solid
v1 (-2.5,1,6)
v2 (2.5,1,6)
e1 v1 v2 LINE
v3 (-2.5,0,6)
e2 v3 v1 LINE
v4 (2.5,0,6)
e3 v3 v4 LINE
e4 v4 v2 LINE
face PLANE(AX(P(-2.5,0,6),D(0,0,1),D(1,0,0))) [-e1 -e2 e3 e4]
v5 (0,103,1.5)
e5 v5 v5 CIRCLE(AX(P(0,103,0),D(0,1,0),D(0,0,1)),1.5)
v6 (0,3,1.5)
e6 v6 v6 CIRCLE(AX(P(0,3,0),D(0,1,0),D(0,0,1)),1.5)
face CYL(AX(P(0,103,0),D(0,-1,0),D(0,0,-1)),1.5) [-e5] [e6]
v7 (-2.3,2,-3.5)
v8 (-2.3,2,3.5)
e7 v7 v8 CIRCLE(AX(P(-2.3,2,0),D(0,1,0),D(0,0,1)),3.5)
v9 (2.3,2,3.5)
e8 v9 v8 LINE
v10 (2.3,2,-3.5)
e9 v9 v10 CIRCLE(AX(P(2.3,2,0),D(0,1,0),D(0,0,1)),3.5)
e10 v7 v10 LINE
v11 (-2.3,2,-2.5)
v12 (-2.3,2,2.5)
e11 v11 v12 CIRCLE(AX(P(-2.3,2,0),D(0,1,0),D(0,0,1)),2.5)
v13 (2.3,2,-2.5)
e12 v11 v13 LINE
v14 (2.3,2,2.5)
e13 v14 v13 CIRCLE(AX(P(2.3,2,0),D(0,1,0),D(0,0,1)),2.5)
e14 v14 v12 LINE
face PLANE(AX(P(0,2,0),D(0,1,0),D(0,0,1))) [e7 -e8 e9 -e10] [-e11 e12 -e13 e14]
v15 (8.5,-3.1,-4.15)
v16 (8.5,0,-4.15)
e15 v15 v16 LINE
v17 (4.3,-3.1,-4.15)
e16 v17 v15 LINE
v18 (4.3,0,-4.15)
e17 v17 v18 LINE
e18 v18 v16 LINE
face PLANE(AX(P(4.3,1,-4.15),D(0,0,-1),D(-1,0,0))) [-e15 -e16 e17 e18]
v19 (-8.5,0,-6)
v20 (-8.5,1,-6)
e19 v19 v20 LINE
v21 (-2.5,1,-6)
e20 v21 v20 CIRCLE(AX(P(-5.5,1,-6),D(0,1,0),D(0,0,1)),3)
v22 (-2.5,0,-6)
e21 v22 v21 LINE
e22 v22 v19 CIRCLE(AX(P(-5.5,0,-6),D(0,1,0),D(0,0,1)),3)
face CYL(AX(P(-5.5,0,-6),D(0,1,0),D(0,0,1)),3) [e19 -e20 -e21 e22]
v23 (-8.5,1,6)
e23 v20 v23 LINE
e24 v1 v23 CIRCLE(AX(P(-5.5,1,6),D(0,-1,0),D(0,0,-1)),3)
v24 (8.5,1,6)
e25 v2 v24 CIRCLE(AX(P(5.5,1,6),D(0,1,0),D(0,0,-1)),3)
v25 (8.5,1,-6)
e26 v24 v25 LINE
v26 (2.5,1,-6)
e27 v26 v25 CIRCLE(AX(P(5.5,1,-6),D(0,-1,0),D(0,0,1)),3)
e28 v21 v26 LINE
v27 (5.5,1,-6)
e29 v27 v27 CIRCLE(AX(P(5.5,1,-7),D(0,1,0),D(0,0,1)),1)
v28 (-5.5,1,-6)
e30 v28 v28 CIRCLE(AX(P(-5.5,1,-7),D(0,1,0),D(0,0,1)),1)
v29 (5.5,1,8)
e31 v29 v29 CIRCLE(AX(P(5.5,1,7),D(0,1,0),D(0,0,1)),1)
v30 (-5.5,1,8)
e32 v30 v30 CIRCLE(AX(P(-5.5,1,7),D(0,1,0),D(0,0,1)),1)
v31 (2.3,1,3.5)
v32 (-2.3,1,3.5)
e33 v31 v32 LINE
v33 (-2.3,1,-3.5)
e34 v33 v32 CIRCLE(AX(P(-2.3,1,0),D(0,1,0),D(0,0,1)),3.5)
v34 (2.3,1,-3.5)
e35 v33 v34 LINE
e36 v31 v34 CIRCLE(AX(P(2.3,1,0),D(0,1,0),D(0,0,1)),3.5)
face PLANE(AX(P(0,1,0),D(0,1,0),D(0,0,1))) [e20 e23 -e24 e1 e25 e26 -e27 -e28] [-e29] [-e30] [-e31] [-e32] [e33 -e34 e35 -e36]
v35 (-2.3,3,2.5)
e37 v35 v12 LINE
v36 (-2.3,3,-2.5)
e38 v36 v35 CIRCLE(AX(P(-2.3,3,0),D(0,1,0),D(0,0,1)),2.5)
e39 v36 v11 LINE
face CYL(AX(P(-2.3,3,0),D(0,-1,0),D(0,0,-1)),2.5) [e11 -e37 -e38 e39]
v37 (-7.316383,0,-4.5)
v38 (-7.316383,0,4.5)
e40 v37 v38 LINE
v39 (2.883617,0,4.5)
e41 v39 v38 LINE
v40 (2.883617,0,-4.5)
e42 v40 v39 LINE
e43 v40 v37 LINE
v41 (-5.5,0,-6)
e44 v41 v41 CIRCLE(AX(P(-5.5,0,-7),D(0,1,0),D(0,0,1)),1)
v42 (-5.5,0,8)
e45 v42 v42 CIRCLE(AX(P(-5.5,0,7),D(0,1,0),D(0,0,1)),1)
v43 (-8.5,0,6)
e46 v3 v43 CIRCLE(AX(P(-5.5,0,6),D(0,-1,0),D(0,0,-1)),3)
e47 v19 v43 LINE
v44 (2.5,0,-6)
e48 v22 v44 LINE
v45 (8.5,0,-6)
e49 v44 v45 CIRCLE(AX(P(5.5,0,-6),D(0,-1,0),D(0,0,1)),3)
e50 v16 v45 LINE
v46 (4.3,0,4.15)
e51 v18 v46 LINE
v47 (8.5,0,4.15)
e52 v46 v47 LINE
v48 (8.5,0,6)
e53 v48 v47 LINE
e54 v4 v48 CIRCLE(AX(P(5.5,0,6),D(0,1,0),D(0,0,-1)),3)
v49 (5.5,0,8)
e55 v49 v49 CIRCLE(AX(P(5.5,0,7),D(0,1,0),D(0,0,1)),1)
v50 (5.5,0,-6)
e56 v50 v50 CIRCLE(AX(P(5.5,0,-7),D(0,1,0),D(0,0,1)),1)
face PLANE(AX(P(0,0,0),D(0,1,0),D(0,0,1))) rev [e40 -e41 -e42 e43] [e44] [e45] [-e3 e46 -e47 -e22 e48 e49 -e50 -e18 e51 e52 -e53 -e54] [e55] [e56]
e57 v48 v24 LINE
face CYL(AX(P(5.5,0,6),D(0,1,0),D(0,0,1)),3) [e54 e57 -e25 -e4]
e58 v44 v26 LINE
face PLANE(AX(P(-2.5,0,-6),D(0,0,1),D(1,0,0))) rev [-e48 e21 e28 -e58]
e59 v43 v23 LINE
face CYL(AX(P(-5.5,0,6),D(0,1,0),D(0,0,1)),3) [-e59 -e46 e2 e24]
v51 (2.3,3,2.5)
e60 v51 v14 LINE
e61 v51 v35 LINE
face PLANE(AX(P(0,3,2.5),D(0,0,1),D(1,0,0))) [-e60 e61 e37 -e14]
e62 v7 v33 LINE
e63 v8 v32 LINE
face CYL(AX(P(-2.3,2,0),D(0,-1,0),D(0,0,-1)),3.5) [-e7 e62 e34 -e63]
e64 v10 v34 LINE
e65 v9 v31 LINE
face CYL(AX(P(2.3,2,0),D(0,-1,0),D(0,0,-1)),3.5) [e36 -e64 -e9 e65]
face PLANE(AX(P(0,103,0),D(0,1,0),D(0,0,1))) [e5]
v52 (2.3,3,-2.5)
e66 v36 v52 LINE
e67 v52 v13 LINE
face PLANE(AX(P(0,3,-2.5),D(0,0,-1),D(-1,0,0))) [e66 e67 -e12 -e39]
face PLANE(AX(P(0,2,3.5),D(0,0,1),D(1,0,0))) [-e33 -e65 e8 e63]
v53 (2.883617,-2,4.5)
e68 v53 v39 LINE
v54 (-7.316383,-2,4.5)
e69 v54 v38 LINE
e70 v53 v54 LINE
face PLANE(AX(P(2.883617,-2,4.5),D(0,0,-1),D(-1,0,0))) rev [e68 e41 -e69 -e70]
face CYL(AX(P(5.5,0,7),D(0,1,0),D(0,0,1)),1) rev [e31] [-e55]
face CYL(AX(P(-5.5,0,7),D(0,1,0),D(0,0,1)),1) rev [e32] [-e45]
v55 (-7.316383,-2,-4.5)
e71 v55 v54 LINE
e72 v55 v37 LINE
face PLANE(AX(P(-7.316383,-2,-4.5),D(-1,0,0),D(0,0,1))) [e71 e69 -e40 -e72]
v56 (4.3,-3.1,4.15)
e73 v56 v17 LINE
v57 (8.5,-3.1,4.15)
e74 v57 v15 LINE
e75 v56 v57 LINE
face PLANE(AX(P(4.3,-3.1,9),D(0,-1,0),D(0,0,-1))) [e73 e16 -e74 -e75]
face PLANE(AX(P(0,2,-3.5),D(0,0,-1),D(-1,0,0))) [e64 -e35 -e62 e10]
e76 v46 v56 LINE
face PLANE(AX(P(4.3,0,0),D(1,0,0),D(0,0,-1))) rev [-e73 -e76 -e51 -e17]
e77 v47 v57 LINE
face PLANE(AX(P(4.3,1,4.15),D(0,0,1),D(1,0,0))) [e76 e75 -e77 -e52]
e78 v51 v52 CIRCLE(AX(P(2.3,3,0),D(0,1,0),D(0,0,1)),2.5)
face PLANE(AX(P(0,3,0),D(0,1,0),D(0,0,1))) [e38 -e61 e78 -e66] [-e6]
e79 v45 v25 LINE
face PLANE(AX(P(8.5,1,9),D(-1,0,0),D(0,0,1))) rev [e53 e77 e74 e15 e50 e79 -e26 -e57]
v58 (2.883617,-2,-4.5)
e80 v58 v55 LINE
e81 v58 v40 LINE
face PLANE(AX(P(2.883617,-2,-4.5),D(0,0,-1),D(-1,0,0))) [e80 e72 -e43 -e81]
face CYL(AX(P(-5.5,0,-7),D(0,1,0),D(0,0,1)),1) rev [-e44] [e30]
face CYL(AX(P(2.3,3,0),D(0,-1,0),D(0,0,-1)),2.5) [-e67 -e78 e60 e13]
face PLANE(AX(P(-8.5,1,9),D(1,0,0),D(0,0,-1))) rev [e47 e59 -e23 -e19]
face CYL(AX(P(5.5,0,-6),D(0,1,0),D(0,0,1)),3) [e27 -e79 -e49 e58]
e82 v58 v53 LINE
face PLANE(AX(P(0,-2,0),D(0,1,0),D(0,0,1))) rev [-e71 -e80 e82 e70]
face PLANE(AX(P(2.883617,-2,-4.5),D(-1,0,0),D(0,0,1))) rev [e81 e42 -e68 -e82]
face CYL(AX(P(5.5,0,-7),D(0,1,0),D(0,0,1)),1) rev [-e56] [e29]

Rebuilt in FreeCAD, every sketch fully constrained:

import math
import FreeCAD as App
import Part
import Sketcher

doc = App.newDocument("Part")
body = doc.addObject("PartDesign::Body", "Body")

# Sketch on XZ plane
sketch1 = body.newObject("Sketcher::SketchObject", "Sketch")
sketch1.AttachmentSupport = (doc.getObject("XZ_Plane"), [""])
sketch1.MapMode = "FlatFace"
sketch1.addGeometry(Part.LineSegment(App.Vector(-8.5, -9, 0), App.Vector(-8.5, 9, 0)), False)
sketch1.addGeometry(Part.LineSegment(App.Vector(-8.5, 9, 0), App.Vector(8.5, 9, 0)), False)
sketch1.addGeometry(Part.LineSegment(App.Vector(8.5, 9, 0), App.Vector(8.5, -9, 0)), False)
sketch1.addGeometry(Part.LineSegment(App.Vector(8.5, -9, 0), App.Vector(-8.5, -9, 0)), False)
sketch1.addConstraint(Sketcher.Constraint("Coincident", 0, 2, 1, 1))
sketch1.addConstraint(Sketcher.Constraint("Coincident", 1, 2, 2, 1))
sketch1.addConstraint(Sketcher.Constraint("Coincident", 2, 2, 3, 1))
sketch1.addConstraint(Sketcher.Constraint("Coincident", 3, 2, 0, 1))
sketch1.addConstraint(Sketcher.Constraint("Vertical", 0))
sketch1.addConstraint(Sketcher.Constraint("Horizontal", 1))
sketch1.addConstraint(Sketcher.Constraint("Vertical", 2))
sketch1.addConstraint(Sketcher.Constraint("Horizontal", 3))
sketch1.addConstraint(Sketcher.Constraint("Symmetric", 0, 2, 2, 2, -1, 1))
sketch1.addConstraint(Sketcher.Constraint("DistanceX", 1, 1, 1, 2, 17.0))
sketch1.addConstraint(Sketcher.Constraint("DistanceY", 0, 1, 0, 2, 18.0))
pad1 = body.newObject("PartDesign::Pad", "Pad")
pad1.Profile = sketch1
pad1.Length = 1
pad1.Reversed = True

# Sketch on XZ plane
sketch2 = body.newObject("Sketcher::SketchObject", "Sketch001")
sketch2.AttachmentSupport = (doc.getObject("XZ_Plane"), [""])
sketch2.MapMode = "FlatFace"
sketch2.AttachmentOffset = App.Placement(App.Vector(0, 0, -1), App.Rotation())
sketch2.addGeometry(Part.Circle(App.Vector(-5.5, -7, 0), App.Vector(0, 0, 1), 1), False)
sketch2.addGeometry(Part.Circle(App.Vector(5.5, -7, 0), App.Vector(0, 0, 1), 1), False)
sketch2.addGeometry(Part.Circle(App.Vector(-5.5, 7, 0), App.Vector(0, 0, 1), 1), False)
sketch2.addGeometry(Part.Circle(App.Vector(5.5, 7, 0), App.Vector(0, 0, 1), 1), False)
sketch2.addConstraint(Sketcher.Constraint("Equal", 0, 1))
sketch2.addConstraint(Sketcher.Constraint("Equal", 1, 2))
sketch2.addConstraint(Sketcher.Constraint("Equal", 2, 3))
sketch2.addConstraint(Sketcher.Constraint("Symmetric", 1, 3, 2, 3, -1, 1))
sketch2.addConstraint(Sketcher.Constraint("Symmetric", 0, 3, 3, 3, -1, 1))
sketch2.addConstraint(Sketcher.Constraint("Symmetric", 0, 3, 1, 3, -2))
sketch2.addConstraint(Sketcher.Constraint("Diameter", 0, 2.0))
sketch2.addConstraint(Sketcher.Constraint("DistanceY", 0, 3, -1, 1, 7.0))
sketch2.addConstraint(Sketcher.Constraint("DistanceX", 0, 3, 1, 3, 11.0))
pocket1 = body.newObject("PartDesign::Pocket", "Pocket")
pocket1.Profile = sketch2
pocket1.Type = "ThroughAll"
pocket1.Reversed = True

# Sketch on XZ plane
sketch3 = body.newObject("Sketcher::SketchObject", "Sketch002")
sketch3.AttachmentSupport = (doc.getObject("XZ_Plane"), [""])
sketch3.MapMode = "FlatFace"
sketch3.AttachmentOffset = App.Placement(App.Vector(0, 0, -1), App.Rotation())
sketch3.addGeometry(Part.LineSegment(App.Vector(-8.5, -9, 0), App.Vector(-8.5, -6, 0)), False)
sketch3.addGeometry(Part.ArcOfCircle(Part.Circle(App.Vector(-5.5, -6, 0), App.Vector(0, 0, 1), 3), math.radians(180), math.radians(270)), False)
sketch3.addGeometry(Part.LineSegment(App.Vector(-5.5, -9, 0), App.Vector(-8.5, -9, 0)), False)
sketch3.addGeometry(Part.LineSegment(App.Vector(-2.5, -9, 0), App.Vector(-5.5, -9, 0)), False)
sketch3.addGeometry(Part.ArcOfCircle(Part.Circle(App.Vector(-5.5, -6, 0), App.Vector(0, 0, 1), 3), math.radians(-90), math.radians(0)), False)
sketch3.addGeometry(Part.LineSegment(App.Vector(-2.5, -6, 0), App.Vector(-2.5, -9, 0)), False)
sketch3.addConstraint(Sketcher.Constraint("Tangent", 0, 2, 1, 1))
sketch3.addConstraint(Sketcher.Constraint("Tangent", 1, 2, 2, 1))
sketch3.addConstraint(Sketcher.Constraint("Coincident", 2, 2, 0, 1))
sketch3.addConstraint(Sketcher.Constraint("Tangent", 3, 2, 4, 1))
sketch3.addConstraint(Sketcher.Constraint("Tangent", 4, 2, 5, 1))
sketch3.addConstraint(Sketcher.Constraint("Coincident", 5, 2, 3, 1))
sketch3.addConstraint(Sketcher.Constraint("Vertical", 0))
sketch3.addConstraint(Sketcher.Constraint("Horizontal", 2))
sketch3.addConstraint(Sketcher.Constraint("Horizontal", 3))
sketch3.addConstraint(Sketcher.Constraint("Vertical", 5))
sketch3.addConstraint(Sketcher.Constraint("Coincident", 4, 3, 1, 3))
sketch3.addConstraint(Sketcher.Constraint("Equal", 1, 4))
sketch3.addConstraint(Sketcher.Constraint("Radius", 1, 3.0))
sketch3.addConstraint(Sketcher.Constraint("DistanceY", 1, 3, -1, 1, 6.0))
sketch3.addConstraint(Sketcher.Constraint("DistanceX", 1, 3, -1, 1, 5.5))
pocket2 = body.newObject("PartDesign::Pocket", "Pocket001")
pocket2.Profile = sketch3
pocket2.Type = "ThroughAll"
pocket2.Reversed = True
doc.recompute()

mirrored = body.newObject("PartDesign::Mirrored", "Mirrored")
mirrored.Originals = [pocket2]
mirrored.MirrorPlane = (doc.getObject("XY_Plane"), [""])
body.Tip = mirrored
doc.recompute()

mirrored2 = body.newObject("PartDesign::Mirrored", "Mirrored001")
mirrored2.Originals = [pocket2]
mirrored2.MirrorPlane = (doc.getObject("YZ_Plane"), [""])
body.Tip = mirrored2

# Sketch on XZ plane
sketch4 = body.newObject("Sketcher::SketchObject", "Sketch003")
sketch4.AttachmentSupport = (doc.getObject("XZ_Plane"), [""])
sketch4.MapMode = "FlatFace"
sketch4.AttachmentOffset = App.Placement(App.Vector(0, 0, -1), App.Rotation())
sketch4.addGeometry(Part.LineSegment(App.Vector(8.5, 9, 0), App.Vector(8.5, 6, 0)), False)
sketch4.addGeometry(Part.ArcOfCircle(Part.Circle(App.Vector(5.5, 6, 0), App.Vector(0, 0, 1), 3), math.radians(0), math.radians(90)), False)
sketch4.addGeometry(Part.LineSegment(App.Vector(5.5, 9, 0), App.Vector(8.5, 9, 0)), False)
sketch4.addGeometry(Part.LineSegment(App.Vector(2.5, 9, 0), App.Vector(5.5, 9, 0)), False)
sketch4.addGeometry(Part.ArcOfCircle(Part.Circle(App.Vector(5.5, 6, 0), App.Vector(0, 0, 1), 3), math.radians(90), math.radians(180)), False)
sketch4.addGeometry(Part.LineSegment(App.Vector(2.5, 6, 0), App.Vector(2.5, 9, 0)), False)
sketch4.addConstraint(Sketcher.Constraint("Tangent", 0, 2, 1, 1))
sketch4.addConstraint(Sketcher.Constraint("Tangent", 1, 2, 2, 1))
sketch4.addConstraint(Sketcher.Constraint("Coincident", 2, 2, 0, 1))
sketch4.addConstraint(Sketcher.Constraint("Tangent", 3, 2, 4, 1))
sketch4.addConstraint(Sketcher.Constraint("Tangent", 4, 2, 5, 1))
sketch4.addConstraint(Sketcher.Constraint("Coincident", 5, 2, 3, 1))
sketch4.addConstraint(Sketcher.Constraint("Vertical", 0))
sketch4.addConstraint(Sketcher.Constraint("Horizontal", 2))
sketch4.addConstraint(Sketcher.Constraint("Horizontal", 3))
sketch4.addConstraint(Sketcher.Constraint("Vertical", 5))
sketch4.addConstraint(Sketcher.Constraint("Coincident", 4, 3, 1, 3))
sketch4.addConstraint(Sketcher.Constraint("Equal", 1, 4))
sketch4.addConstraint(Sketcher.Constraint("Radius", 1, 3.0))
sketch4.addConstraint(Sketcher.Constraint("DistanceY", -1, 1, 1, 3, 6.0))
sketch4.addConstraint(Sketcher.Constraint("DistanceX", -1, 1, 1, 3, 5.5))
pocket3 = body.newObject("PartDesign::Pocket", "Pocket002")
pocket3.Profile = sketch4
pocket3.Type = "ThroughAll"
pocket3.Reversed = True

# Sketch on XZ plane
sketch5 = body.newObject("Sketcher::SketchObject", "Sketch004")
sketch5.AttachmentSupport = (doc.getObject("XZ_Plane"), [""])
sketch5.MapMode = "FlatFace"
sketch5.AttachmentOffset = App.Placement(App.Vector(0, 0, -1), App.Rotation())
sketch5.addGeometry(Part.LineSegment(App.Vector(-2.5, -9, 0), App.Vector(-2.5, -6, 0)), False)
sketch5.addGeometry(Part.LineSegment(App.Vector(-2.5, -6, 0), App.Vector(2.5, -6, 0)), False)
sketch5.addGeometry(Part.LineSegment(App.Vector(2.5, -6, 0), App.Vector(2.5, -9, 0)), False)
sketch5.addGeometry(Part.LineSegment(App.Vector(2.5, -9, 0), App.Vector(-2.5, -9, 0)), False)
sketch5.addConstraint(Sketcher.Constraint("Coincident", 0, 2, 1, 1))
sketch5.addConstraint(Sketcher.Constraint("Coincident", 1, 2, 2, 1))
sketch5.addConstraint(Sketcher.Constraint("Coincident", 2, 2, 3, 1))
sketch5.addConstraint(Sketcher.Constraint("Coincident", 3, 2, 0, 1))
sketch5.addConstraint(Sketcher.Constraint("Vertical", 0))
sketch5.addConstraint(Sketcher.Constraint("Horizontal", 1))
sketch5.addConstraint(Sketcher.Constraint("Vertical", 2))
sketch5.addConstraint(Sketcher.Constraint("Horizontal", 3))
sketch5.addConstraint(Sketcher.Constraint("DistanceX", 1, 1, 1, 2, 5.0))
sketch5.addConstraint(Sketcher.Constraint("DistanceY", 0, 1, 0, 2, 3.0))
sketch5.addConstraint(Sketcher.Constraint("DistanceY", 0, 2, -1, 1, 6.0))
sketch5.addConstraint(Sketcher.Constraint("DistanceX", 0, 2, -1, 1, 2.5))
pocket4 = body.newObject("PartDesign::Pocket", "Pocket003")
pocket4.Profile = sketch5
pocket4.Type = "ThroughAll"
pocket4.Reversed = True
doc.recompute()

mirrored3 = body.newObject("PartDesign::Mirrored", "Mirrored002")
mirrored3.Originals = [pocket4]
mirrored3.MirrorPlane = (doc.getObject("XY_Plane"), [""])
body.Tip = mirrored3

# Sketch on XZ plane
sketch6 = body.newObject("Sketcher::SketchObject", "Sketch005")
sketch6.AttachmentSupport = (doc.getObject("XZ_Plane"), [""])
sketch6.MapMode = "FlatFace"
sketch6.AttachmentOffset = App.Placement(App.Vector(0, 0, -1), App.Rotation())
sketch6.addGeometry(Part.ArcOfCircle(Part.Circle(App.Vector(-2.3, 0, 0), App.Vector(0, 0, 1), 3.5), math.radians(90), math.radians(270)), False)
sketch6.addGeometry(Part.LineSegment(App.Vector(-2.3, 3.5, 0), App.Vector(2.3, 3.5, 0)), False)
sketch6.addGeometry(Part.ArcOfCircle(Part.Circle(App.Vector(2.3, 0, 0), App.Vector(0, 0, 1), 3.5), math.radians(-90), math.radians(90)), False)
sketch6.addGeometry(Part.LineSegment(App.Vector(2.3, -3.5, 0), App.Vector(-2.3, -3.5, 0)), False)
sketch6.addConstraint(Sketcher.Constraint("Tangent", 0, 1, 1, 1))
sketch6.addConstraint(Sketcher.Constraint("Tangent", 1, 2, 2, 2))
sketch6.addConstraint(Sketcher.Constraint("Tangent", 2, 1, 3, 1))
sketch6.addConstraint(Sketcher.Constraint("Tangent", 3, 2, 0, 2))
sketch6.addConstraint(Sketcher.Constraint("Horizontal", 1))
sketch6.addConstraint(Sketcher.Constraint("Horizontal", 3))
sketch6.addConstraint(Sketcher.Constraint("Symmetric", 0, 3, 2, 3, -1, 1))
sketch6.addConstraint(Sketcher.Constraint("Radius", 0, 3.5))
sketch6.addConstraint(Sketcher.Constraint("DistanceX", 1, 1, 1, 2, 4.6))
pad2 = body.newObject("PartDesign::Pad", "Pad001")
pad2.Profile = sketch6
pad2.Length = 1
pad2.Reversed = True

# Sketch on XZ plane
sketch7 = body.newObject("Sketcher::SketchObject", "Sketch006")
sketch7.AttachmentSupport = (doc.getObject("XZ_Plane"), [""])
sketch7.MapMode = "FlatFace"
sketch7.AttachmentOffset = App.Placement(App.Vector(0, 0, -2), App.Rotation())
sketch7.addGeometry(Part.ArcOfCircle(Part.Circle(App.Vector(-2.3, 0, 0), App.Vector(0, 0, 1), 2.5), math.radians(90), math.radians(270)), False)
sketch7.addGeometry(Part.LineSegment(App.Vector(-2.3, 2.5, 0), App.Vector(2.3, 2.5, 0)), False)
sketch7.addGeometry(Part.ArcOfCircle(Part.Circle(App.Vector(2.3, 0, 0), App.Vector(0, 0, 1), 2.5), math.radians(-90), math.radians(90)), False)
sketch7.addGeometry(Part.LineSegment(App.Vector(2.3, -2.5, 0), App.Vector(-2.3, -2.5, 0)), False)
sketch7.addConstraint(Sketcher.Constraint("Tangent", 0, 1, 1, 1))
sketch7.addConstraint(Sketcher.Constraint("Tangent", 1, 2, 2, 2))
sketch7.addConstraint(Sketcher.Constraint("Tangent", 2, 1, 3, 1))
sketch7.addConstraint(Sketcher.Constraint("Tangent", 3, 2, 0, 2))
sketch7.addConstraint(Sketcher.Constraint("Horizontal", 1))
sketch7.addConstraint(Sketcher.Constraint("Horizontal", 3))
sketch7.addConstraint(Sketcher.Constraint("Symmetric", 0, 3, 2, 3, -1, 1))
sketch7.addConstraint(Sketcher.Constraint("Radius", 0, 2.5))
sketch7.addConstraint(Sketcher.Constraint("DistanceX", 1, 1, 1, 2, 4.6))
pad3 = body.newObject("PartDesign::Pad", "Pad002")
pad3.Profile = sketch7
pad3.Length = 1
pad3.Reversed = True

# Sketch on YZ plane
sketch8 = body.newObject("Sketcher::SketchObject", "Sketch007")
sketch8.AttachmentSupport = (doc.getObject("YZ_Plane"), [""])
sketch8.MapMode = "FlatFace"
sketch8.AttachmentOffset = App.Placement(App.Vector(0, 0, 8.5), App.Rotation())
sketch8.addGeometry(Part.LineSegment(App.Vector(0, 4.15, 0), App.Vector(-3.1, 4.15, 0)), False)
sketch8.addGeometry(Part.LineSegment(App.Vector(-3.1, 4.15, 0), App.Vector(-3.1, -4.15, 0)), False)
sketch8.addGeometry(Part.LineSegment(App.Vector(-3.1, -4.15, 0), App.Vector(0, -4.15, 0)), False)
sketch8.addGeometry(Part.LineSegment(App.Vector(0, -4.15, 0), App.Vector(0, 4.15, 0)), False)
sketch8.addConstraint(Sketcher.Constraint("Coincident", 0, 2, 1, 1))
sketch8.addConstraint(Sketcher.Constraint("Coincident", 1, 2, 2, 1))
sketch8.addConstraint(Sketcher.Constraint("Coincident", 2, 2, 3, 1))
sketch8.addConstraint(Sketcher.Constraint("Coincident", 3, 2, 0, 1))
sketch8.addConstraint(Sketcher.Constraint("Horizontal", 0))
sketch8.addConstraint(Sketcher.Constraint("Vertical", 1))
sketch8.addConstraint(Sketcher.Constraint("Horizontal", 2))
sketch8.addConstraint(Sketcher.Constraint("Vertical", 3))
sketch8.addConstraint(Sketcher.Constraint("Symmetric", 2, 2, 3, 2, -1, 1))
sketch8.addConstraint(Sketcher.Constraint("DistanceX", 0, 2, 0, 1, 3.1))
sketch8.addConstraint(Sketcher.Constraint("DistanceY", 1, 2, 1, 1, 8.3))
pad4 = body.newObject("PartDesign::Pad", "Pad003")
pad4.Profile = sketch8
pad4.Length = 4.2
pad4.Reversed = True

# Sketch on XZ plane
sketch9 = body.newObject("Sketcher::SketchObject", "Sketch008")
sketch9.AttachmentSupport = (doc.getObject("XZ_Plane"), [""])
sketch9.MapMode = "FlatFace"
sketch9.addGeometry(Part.LineSegment(App.Vector(-7.316383, 4.5, 0), App.Vector(-7.316383, -4.5, 0)), False)
sketch9.addGeometry(Part.LineSegment(App.Vector(-7.316383, -4.5, 0), App.Vector(2.883617, -4.5, 0)), False)
sketch9.addGeometry(Part.LineSegment(App.Vector(2.883617, -4.5, 0), App.Vector(2.883617, 4.5, 0)), False)
sketch9.addGeometry(Part.LineSegment(App.Vector(2.883617, 4.5, 0), App.Vector(-7.316383, 4.5, 0)), False)
sketch9.addConstraint(Sketcher.Constraint("Coincident", 0, 2, 1, 1))
sketch9.addConstraint(Sketcher.Constraint("Coincident", 1, 2, 2, 1))
sketch9.addConstraint(Sketcher.Constraint("Coincident", 2, 2, 3, 1))
sketch9.addConstraint(Sketcher.Constraint("Coincident", 3, 2, 0, 1))
sketch9.addConstraint(Sketcher.Constraint("Vertical", 0))
sketch9.addConstraint(Sketcher.Constraint("Horizontal", 1))
sketch9.addConstraint(Sketcher.Constraint("Vertical", 2))
sketch9.addConstraint(Sketcher.Constraint("Horizontal", 3))
sketch9.addConstraint(Sketcher.Constraint("DistanceY", 0, 2, 0, 1, 9.0))
sketch9.addConstraint(Sketcher.Constraint("DistanceX", 1, 1, 1, 2, 10.2))
sketch9.addConstraint(Sketcher.Constraint("DistanceY", 0, 2, -1, 1, 4.5))
sketch9.addConstraint(Sketcher.Constraint("DistanceX", 0, 2, -1, 1, 7.316383))
pad5 = body.newObject("PartDesign::Pad", "Pad004")
pad5.Profile = sketch9
pad5.Length = 2

# Sketch on XZ plane
sketch10 = body.newObject("Sketcher::SketchObject", "Sketch009")
sketch10.AttachmentSupport = (doc.getObject("XZ_Plane"), [""])
sketch10.MapMode = "FlatFace"
sketch10.AttachmentOffset = App.Placement(App.Vector(0, 0, -3), App.Rotation())
sketch10.addGeometry(Part.Circle(App.Vector(0, 0, 0), App.Vector(0, 0, 1), 1.5), False)
sketch10.addConstraint(Sketcher.Constraint("Coincident", 0, 3, -1, 1))
sketch10.addConstraint(Sketcher.Constraint("Diameter", 0, 3.0))
pad6 = body.newObject("PartDesign::Pad", "Pad005")
pad6.Profile = sketch10
pad6.Length = 100
pad6.Reversed = True

doc.recompute()
